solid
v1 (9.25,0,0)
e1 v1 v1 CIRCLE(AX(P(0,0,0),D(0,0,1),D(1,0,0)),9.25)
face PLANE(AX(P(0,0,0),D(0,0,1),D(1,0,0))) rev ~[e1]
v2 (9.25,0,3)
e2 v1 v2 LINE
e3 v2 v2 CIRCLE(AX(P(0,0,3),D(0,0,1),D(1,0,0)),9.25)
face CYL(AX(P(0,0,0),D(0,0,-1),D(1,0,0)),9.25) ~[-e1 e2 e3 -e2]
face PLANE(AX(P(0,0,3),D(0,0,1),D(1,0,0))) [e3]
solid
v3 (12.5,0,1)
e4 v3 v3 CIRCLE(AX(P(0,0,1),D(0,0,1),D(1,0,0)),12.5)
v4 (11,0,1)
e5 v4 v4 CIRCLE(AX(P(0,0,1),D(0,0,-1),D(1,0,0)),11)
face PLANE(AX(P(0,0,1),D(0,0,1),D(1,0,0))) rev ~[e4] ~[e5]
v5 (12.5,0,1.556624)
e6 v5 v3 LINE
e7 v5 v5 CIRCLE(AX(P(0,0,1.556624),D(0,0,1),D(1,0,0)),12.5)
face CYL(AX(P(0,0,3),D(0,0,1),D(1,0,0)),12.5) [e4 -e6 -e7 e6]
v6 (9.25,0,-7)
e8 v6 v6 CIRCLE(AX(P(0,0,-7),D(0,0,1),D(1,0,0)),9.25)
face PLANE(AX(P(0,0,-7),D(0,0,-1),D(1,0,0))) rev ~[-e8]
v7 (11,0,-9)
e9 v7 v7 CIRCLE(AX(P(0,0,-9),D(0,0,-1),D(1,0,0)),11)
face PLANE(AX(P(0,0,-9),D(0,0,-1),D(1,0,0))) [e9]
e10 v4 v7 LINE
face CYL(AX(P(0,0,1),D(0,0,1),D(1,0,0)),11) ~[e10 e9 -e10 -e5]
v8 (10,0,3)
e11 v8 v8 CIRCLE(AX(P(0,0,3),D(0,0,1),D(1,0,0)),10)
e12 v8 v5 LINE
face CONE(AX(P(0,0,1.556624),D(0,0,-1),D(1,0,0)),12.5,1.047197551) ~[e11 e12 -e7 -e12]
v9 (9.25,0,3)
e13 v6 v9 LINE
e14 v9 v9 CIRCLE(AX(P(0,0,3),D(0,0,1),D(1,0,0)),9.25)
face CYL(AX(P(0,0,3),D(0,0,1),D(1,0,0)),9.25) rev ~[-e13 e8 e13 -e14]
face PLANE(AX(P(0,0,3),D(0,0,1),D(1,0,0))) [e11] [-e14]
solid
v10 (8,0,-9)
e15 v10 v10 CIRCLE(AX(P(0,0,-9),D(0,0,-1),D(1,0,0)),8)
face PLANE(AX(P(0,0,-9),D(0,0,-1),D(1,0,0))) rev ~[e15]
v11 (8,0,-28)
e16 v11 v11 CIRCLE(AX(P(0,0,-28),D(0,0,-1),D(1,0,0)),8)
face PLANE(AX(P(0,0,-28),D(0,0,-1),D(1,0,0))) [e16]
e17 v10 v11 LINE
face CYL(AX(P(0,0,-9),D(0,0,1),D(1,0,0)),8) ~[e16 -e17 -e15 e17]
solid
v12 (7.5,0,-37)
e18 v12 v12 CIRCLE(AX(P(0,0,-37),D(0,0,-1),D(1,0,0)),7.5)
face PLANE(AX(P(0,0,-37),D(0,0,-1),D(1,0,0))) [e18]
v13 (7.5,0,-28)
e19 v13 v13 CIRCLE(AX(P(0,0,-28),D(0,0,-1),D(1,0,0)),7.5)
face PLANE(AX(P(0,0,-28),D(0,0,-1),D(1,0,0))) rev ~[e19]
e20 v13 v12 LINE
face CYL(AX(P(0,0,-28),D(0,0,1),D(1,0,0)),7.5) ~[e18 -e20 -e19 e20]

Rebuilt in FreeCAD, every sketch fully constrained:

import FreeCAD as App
import Part
import Sketcher

V = App.Vector


def edges_at(feature, points):
    """Names of the edges that pass closest to the given points."""
    edges = feature.Shape.Edges
    near = lambda p: min(range(len(edges)), key=lambda i: edges[i].distToShape(Part.Vertex(*p))[0])
    return sorted({f"Edge{near(p) + 1}" for p in points})

doc = App.newDocument("Part")
body = doc.addObject("PartDesign::Body", "Body")

# Sketch on XY plane
sketch1 = doc.addObject("Sketcher::SketchObject", "Sketch")
body.addObject(sketch1)
sketch1.AttachmentSupport = (doc.XY_Plane, [""])
sketch1.MapMode = "FlatFace"
sketch1.addGeometry(Part.Circle(V(0, 0, 0), V(0, 0, 1), 9), False)
sketch1.addConstraint(Sketcher.Constraint("Coincident", 0, 3, -1, 1))
sketch1.addConstraint(Sketcher.Constraint("Diameter", 0, 18.5))
pad1 = doc.addObject("PartDesign::Pad", "Pad")
body.addObject(pad1)
pad1.Profile = sketch1
pad1.Length = 3
body2 = doc.addObject("PartDesign::Body", "Body001")

# Sketch on XY plane
sketch2 = doc.addObject("Sketcher::SketchObject", "Sketch001")
body2.addObject(sketch2)
sketch2.AttachmentSupport = (doc.getObject("XY_Plane001"), [""])
sketch2.MapMode = "FlatFace"
sketch2.AttachmentOffset = App.Placement(V(0, 0, 3), App.Rotation())
sketch2.addGeometry(Part.Circle(V(0, 0, 0), V(0, 0, 1), 12), False)
sketch2.addGeometry(Part.Circle(V(0, 0, 0), V(0, 0, 1), 9), False)
sketch2.addConstraint(Sketcher.Constraint("Coincident", 0, 3, -1, 1))
sketch2.addConstraint(Sketcher.Constraint("Coincident", 1, 3, -1, 1))
sketch2.addConstraint(Sketcher.Constraint("Diameter", 0, 25.0))
sketch2.addConstraint(Sketcher.Constraint("Diameter", 1, 18.5))
pad2 = doc.addObject("PartDesign::Pad", "Pad001")
body2.addObject(pad2)
pad2.Profile = sketch2
pad2.Length = 2
pad2.Reversed = True

# Sketch on XY plane
sketch3 = doc.addObject("Sketcher::SketchObject", "Sketch002")
body2.addObject(sketch3)
sketch3.AttachmentSupport = (doc.getObject("XY_Plane001"), [""])
sketch3.MapMode = "FlatFace"
sketch3.AttachmentOffset = App.Placement(V(0, 0, 1), App.Rotation())
sketch3.addGeometry(Part.Circle(V(0, 0, 0), V(0, 0, 1), 11), False)
sketch3.addGeometry(Part.Circle(V(0, 0, 0), V(0, 0, 1), 9), False)
sketch3.addConstraint(Sketcher.Constraint("Coincident", 0, 3, -1, 1))
sketch3.addConstraint(Sketcher.Constraint("Coincident", 1, 3, -1, 1))
sketch3.addConstraint(Sketcher.Constraint("Diameter", 0, 22.0))
sketch3.addConstraint(Sketcher.Constraint("Diameter", 1, 18.5))
pad3 = doc.addObject("PartDesign::Pad", "Pad002")
body2.addObject(pad3)
pad3.Profile = sketch3
pad3.Length = 10
pad3.Reversed = True

# Sketch on XY plane
sketch4 = doc.addObject("Sketcher::SketchObject", "Sketch003")
body2.addObject(sketch4)
sketch4.AttachmentSupport = (doc.getObject("XY_Plane001"), [""])
sketch4.MapMode = "FlatFace"
sketch4.AttachmentOffset = App.Placement(V(0, 0, -9), App.Rotation())
sketch4.addGeometry(Part.Circle(V(0, 0, 0), V(0, 0, 1), 11), False)
sketch4.addConstraint(Sketcher.Constraint("Coincident", 0, 3, -1, 1))
sketch4.addConstraint(Sketcher.Constraint("Diameter", 0, 22.0))
pad4 = doc.addObject("PartDesign::Pad", "Pad003")
body2.addObject(pad4)
pad4.Profile = sketch4
pad4.Length = 2
doc.recompute()

chamfer = doc.addObject("PartDesign::Chamfer", "Chamfer")
body2.addObject(chamfer)
chamfer.Base = (pad4, edges_at(pad4, [(-12.5, 0, 3)]))
chamfer.ChamferType = "Two distances"
chamfer.Size = 2.5
chamfer.Size2 = 1.443376
chamfer.FlipDirection = True
body3 = doc.addObject("PartDesign::Body", "Body002")

# Sketch on XY plane
sketch5 = doc.addObject("Sketcher::SketchObject", "Sketch004")
body3.addObject(sketch5)
sketch5.AttachmentSupport = (doc.getObject("XY_Plane002"), [""])
sketch5.MapMode = "FlatFace"
sketch5.AttachmentOffset = App.Placement(V(0, 0, -9), App.Rotation())
sketch5.addGeometry(Part.Circle(V(0, 0, 0), V(0, 0, 1), 8), False)
sketch5.addConstraint(Sketcher.Constraint("Coincident", 0, 3, -1, 1))
sketch5.addConstraint(Sketcher.Constraint("Diameter", 0, 16.0))
pad5 = doc.addObject("PartDesign::Pad", "Pad004")
body3.addObject(pad5)
pad5.Profile = sketch5
pad5.Length = 19
pad5.Reversed = True
body4 = doc.addObject("PartDesign::Body", "Body003")

# Sketch on XY plane
sketch6 = doc.addObject("Sketcher::SketchObject", "Sketch005")
body4.addObject(sketch6)
sketch6.AttachmentSupport = (doc.getObject("XY_Plane003"), [""])
sketch6.MapMode = "FlatFace"
sketch6.AttachmentOffset = App.Placement(V(0, 0, -28), App.Rotation())
sketch6.addGeometry(Part.Circle(V(0, 0, 0), V(0, 0, 1), 8), False)
sketch6.addConstraint(Sketcher.Constraint("Coincident", 0, 3, -1, 1))
sketch6.addConstraint(Sketcher.Constraint("Diameter", 0, 15.0))
pad6 = doc.addObject("PartDesign::Pad", "Pad005")
body4.addObject(pad6)
pad6.Profile = sketch6
pad6.Length = 9
pad6.Reversed = True

doc.recompute()
